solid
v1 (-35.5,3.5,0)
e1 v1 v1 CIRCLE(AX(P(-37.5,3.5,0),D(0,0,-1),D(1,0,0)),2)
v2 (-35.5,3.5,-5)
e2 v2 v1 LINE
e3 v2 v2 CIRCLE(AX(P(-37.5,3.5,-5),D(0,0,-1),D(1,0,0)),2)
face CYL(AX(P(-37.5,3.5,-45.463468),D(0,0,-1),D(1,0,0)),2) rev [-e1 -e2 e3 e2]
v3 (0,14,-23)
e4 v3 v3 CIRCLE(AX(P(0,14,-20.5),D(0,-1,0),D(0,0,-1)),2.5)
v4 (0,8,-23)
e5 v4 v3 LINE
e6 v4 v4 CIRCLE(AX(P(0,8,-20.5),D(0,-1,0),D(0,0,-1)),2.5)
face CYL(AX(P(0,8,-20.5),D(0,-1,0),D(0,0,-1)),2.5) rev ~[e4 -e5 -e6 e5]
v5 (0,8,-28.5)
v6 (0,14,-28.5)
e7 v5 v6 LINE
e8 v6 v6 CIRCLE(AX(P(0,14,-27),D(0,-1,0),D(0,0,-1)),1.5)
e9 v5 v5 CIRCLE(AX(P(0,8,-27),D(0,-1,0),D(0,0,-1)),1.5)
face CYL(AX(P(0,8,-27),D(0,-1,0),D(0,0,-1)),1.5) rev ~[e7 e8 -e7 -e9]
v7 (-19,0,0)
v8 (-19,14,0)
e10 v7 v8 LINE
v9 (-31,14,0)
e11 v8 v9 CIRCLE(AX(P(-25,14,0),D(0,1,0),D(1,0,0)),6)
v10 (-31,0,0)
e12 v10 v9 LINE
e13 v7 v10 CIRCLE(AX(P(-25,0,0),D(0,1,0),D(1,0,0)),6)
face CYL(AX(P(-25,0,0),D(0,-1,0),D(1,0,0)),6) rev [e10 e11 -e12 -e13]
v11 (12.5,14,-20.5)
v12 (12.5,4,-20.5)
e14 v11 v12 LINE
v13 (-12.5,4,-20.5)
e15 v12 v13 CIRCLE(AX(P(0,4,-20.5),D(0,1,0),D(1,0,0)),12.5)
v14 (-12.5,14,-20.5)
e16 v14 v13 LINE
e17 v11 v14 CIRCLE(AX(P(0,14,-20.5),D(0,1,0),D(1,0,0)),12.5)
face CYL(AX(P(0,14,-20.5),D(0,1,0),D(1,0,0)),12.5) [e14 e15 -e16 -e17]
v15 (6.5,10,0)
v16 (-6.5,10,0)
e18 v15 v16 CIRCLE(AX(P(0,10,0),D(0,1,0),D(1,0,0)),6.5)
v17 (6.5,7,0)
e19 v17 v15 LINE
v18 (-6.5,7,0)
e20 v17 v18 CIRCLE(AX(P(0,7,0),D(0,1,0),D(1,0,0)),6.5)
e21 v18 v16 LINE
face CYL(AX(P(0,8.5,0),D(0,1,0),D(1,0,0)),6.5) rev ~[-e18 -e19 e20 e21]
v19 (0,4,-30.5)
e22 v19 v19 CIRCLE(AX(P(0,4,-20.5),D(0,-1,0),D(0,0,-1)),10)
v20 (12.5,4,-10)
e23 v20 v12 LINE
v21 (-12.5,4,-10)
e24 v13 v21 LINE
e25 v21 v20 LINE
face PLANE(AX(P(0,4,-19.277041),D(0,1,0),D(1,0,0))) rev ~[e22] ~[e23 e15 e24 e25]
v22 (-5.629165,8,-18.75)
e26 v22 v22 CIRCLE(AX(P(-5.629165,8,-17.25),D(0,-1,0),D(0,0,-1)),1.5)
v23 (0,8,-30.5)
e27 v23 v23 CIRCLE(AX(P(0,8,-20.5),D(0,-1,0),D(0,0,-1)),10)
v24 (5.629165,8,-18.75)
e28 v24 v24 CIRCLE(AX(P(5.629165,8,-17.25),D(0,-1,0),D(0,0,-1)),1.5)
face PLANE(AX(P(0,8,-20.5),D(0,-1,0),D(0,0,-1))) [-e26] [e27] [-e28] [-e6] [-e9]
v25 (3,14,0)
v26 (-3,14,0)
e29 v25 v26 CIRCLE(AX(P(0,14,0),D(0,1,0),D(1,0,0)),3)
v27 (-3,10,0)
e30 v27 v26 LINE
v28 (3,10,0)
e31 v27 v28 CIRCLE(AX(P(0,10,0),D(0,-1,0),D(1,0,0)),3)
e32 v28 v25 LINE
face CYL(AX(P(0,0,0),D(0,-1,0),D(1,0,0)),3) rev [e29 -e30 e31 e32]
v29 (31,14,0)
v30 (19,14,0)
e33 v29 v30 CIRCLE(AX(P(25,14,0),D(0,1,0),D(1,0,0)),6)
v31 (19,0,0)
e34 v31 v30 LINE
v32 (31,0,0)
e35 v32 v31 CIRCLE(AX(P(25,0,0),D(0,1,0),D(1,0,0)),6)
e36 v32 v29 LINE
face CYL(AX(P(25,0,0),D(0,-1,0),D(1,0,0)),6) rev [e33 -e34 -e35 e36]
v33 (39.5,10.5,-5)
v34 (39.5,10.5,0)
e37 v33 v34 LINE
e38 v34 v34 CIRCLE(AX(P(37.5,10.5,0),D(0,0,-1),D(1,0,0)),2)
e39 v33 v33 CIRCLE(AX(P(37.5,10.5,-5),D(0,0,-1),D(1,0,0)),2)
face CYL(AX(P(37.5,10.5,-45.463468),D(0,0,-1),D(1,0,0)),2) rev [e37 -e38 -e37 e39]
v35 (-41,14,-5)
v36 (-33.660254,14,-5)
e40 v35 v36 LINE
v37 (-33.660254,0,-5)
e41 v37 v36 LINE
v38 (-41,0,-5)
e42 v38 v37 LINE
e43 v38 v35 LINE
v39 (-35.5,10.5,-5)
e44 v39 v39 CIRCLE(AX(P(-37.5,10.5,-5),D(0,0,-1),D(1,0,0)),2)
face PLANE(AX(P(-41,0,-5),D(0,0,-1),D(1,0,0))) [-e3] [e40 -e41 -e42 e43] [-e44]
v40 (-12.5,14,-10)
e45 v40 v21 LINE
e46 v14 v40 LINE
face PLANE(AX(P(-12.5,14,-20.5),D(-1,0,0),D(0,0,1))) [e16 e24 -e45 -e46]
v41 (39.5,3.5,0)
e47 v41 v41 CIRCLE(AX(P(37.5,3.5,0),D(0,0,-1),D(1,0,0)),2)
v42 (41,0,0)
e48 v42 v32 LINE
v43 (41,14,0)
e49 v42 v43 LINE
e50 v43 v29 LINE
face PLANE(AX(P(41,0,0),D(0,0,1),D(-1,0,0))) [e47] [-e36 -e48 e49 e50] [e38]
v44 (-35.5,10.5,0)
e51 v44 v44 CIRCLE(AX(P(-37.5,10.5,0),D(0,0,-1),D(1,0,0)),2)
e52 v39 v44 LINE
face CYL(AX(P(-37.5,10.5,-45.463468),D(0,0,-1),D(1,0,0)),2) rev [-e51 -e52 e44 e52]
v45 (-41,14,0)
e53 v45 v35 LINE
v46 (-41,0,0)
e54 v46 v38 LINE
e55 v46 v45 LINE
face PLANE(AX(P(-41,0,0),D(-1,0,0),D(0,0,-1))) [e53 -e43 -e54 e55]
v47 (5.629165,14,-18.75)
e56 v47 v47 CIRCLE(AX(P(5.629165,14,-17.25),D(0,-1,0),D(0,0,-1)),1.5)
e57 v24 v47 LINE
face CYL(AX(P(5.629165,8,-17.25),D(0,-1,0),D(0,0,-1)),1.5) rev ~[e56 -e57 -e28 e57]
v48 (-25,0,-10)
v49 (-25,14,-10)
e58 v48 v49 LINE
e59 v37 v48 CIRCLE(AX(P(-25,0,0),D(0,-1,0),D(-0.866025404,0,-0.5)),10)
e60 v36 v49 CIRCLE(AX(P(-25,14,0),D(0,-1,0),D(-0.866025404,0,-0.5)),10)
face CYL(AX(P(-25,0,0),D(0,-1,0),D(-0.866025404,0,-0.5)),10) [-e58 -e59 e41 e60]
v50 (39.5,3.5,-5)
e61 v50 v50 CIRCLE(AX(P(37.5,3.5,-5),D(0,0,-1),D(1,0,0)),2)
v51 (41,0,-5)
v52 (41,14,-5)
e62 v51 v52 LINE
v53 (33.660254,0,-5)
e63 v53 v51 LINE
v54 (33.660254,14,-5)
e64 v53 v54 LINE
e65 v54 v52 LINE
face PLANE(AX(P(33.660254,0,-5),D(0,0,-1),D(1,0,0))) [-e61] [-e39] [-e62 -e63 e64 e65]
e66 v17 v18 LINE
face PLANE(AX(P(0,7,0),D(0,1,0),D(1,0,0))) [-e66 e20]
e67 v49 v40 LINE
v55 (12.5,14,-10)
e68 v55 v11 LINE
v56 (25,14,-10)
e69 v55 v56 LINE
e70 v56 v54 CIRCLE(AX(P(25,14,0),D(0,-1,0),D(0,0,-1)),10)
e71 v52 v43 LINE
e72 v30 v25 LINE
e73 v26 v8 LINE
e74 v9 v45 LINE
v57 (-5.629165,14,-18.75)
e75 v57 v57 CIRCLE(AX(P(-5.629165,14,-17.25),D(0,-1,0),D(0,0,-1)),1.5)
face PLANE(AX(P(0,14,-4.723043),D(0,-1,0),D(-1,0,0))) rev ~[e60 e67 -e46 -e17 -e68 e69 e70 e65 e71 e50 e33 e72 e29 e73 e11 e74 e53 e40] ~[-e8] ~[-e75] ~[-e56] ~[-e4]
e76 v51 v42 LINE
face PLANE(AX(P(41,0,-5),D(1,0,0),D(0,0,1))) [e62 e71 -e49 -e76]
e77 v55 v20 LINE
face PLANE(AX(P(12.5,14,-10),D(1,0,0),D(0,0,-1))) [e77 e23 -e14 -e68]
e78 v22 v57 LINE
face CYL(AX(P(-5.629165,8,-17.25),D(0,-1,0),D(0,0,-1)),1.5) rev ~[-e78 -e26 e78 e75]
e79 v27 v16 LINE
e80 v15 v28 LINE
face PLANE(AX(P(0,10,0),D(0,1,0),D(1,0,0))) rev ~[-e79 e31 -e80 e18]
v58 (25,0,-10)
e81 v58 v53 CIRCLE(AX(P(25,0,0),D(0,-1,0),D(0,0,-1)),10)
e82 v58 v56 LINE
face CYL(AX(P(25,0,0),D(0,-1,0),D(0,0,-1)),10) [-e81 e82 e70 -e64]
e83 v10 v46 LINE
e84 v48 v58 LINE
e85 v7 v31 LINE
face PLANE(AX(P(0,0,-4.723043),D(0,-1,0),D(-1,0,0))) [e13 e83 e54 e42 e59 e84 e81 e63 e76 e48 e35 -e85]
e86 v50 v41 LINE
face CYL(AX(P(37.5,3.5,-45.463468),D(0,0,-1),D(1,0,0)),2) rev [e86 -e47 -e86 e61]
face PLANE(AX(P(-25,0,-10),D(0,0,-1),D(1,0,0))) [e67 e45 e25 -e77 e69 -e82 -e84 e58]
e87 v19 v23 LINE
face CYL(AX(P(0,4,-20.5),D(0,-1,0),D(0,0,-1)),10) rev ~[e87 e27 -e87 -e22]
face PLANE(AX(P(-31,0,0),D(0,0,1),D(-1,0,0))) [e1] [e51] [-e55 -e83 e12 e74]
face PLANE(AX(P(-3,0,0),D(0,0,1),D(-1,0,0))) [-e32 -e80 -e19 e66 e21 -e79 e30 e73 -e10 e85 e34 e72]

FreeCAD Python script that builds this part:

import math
import FreeCAD as App
import Part
import Sketcher

V = App.Vector

doc = App.newDocument("Part")
body = doc.addObject("PartDesign::Body", "Body")

# Sketch on XZ plane
sketch1 = doc.addObject("Sketcher::SketchObject", "Sketch")
body.addObject(sketch1)
sketch1.AttachmentSupport = (doc.XZ_Plane, [""])
sketch1.MapMode = "FlatFace"
sketch1.addGeometry(Part.LineSegment(V(-19, 0, 0), V(-3, 0, 0)), False)
sketch1.addGeometry(Part.ArcOfCircle(Part.Circle(V(0, 0, 0), V(0, 0, 1), 3), math.radians(180), math.radians(360)), False)
sketch1.addGeometry(Part.LineSegment(V(3, 0, 0), V(19, 0, 0)), False)
sketch1.addGeometry(Part.ArcOfCircle(Part.Circle(V(25, 0, 0), V(0, 0, 1), 6), math.radians(180), math.radians(360)), False)
sketch1.addGeometry(Part.LineSegment(V(31, 0, 0), V(41, 0, 0)), False)
sketch1.addGeometry(Part.LineSegment(V(41, 0, 0), V(41, -5, 0)), False)
sketch1.addGeometry(Part.LineSegment(V(41, -5, 0), V(33.660254, -5, 0)), False)
sketch1.addGeometry(Part.ArcOfCircle(Part.Circle(V(25, 0, 0), V(0, 0, 1), 10), math.radians(-90), math.radians(-30)), False)
sketch1.addGeometry(Part.LineSegment(V(25, -10, 0), V(-25, -10, 0)), False)
sketch1.addGeometry(Part.ArcOfCircle(Part.Circle(V(-25, 0, 0), V(0, 0, 1), 10), math.radians(-150), math.radians(-90)), False)
sketch1.addGeometry(Part.LineSegment(V(-33.660254, -5, 0), V(-41, -5, 0)), False)
sketch1.addGeometry(Part.LineSegment(V(-41, -5, 0), V(-41, 0, 0)), False)
sketch1.addGeometry(Part.LineSegment(V(-41, 0, 0), V(-31, 0, 0)), False)
sketch1.addGeometry(Part.ArcOfCircle(Part.Circle(V(-25, 0, 0), V(0, 0, 1), 6), math.radians(180), math.radians(360)), False)
sketch1.addConstraint(Sketcher.Constraint("Coincident", 0, 2, 1, 1))
sketch1.addConstraint(Sketcher.Constraint("Coincident", 1, 2, 2, 1))
sketch1.addConstraint(Sketcher.Constraint("Coincident", 2, 2, 3, 1))
sketch1.addConstraint(Sketcher.Constraint("Coincident", 3, 2, 4, 1))
sketch1.addConstraint(Sketcher.Constraint("Coincident", 4, 2, 5, 1))
sketch1.addConstraint(Sketcher.Constraint("Coincident", 5, 2, 6, 1))
sketch1.addConstraint(Sketcher.Constraint("Coincident", 6, 2, 7, 2))
sketch1.addConstraint(Sketcher.Constraint("Tangent", 7, 1, 8, 1))
sketch1.addConstraint(Sketcher.Constraint("Tangent", 8, 2, 9, 2))
sketch1.addConstraint(Sketcher.Constraint("Coincident", 9, 1, 10, 1))
sketch1.addConstraint(Sketcher.Constraint("Coincident", 10, 2, 11, 1))
sketch1.addConstraint(Sketcher.Constraint("Coincident", 11, 2, 12, 1))
sketch1.addConstraint(Sketcher.Constraint("Coincident", 12, 2, 13, 1))
sketch1.addConstraint(Sketcher.Constraint("Coincident", 13, 2, 0, 1))
sketch1.addConstraint(Sketcher.Constraint("Horizontal", 0))
sketch1.addConstraint(Sketcher.Constraint("Horizontal", 2))
sketch1.addConstraint(Sketcher.Constraint("Horizontal", 4))
sketch1.addConstraint(Sketcher.Constraint("Vertical", 5))
sketch1.addConstraint(Sketcher.Constraint("Horizontal", 6))
sketch1.addConstraint(Sketcher.Constraint("Horizontal", 8))
sketch1.addConstraint(Sketcher.Constraint("Horizontal", 10))
sketch1.addConstraint(Sketcher.Constraint("Vertical", 11))
sketch1.addConstraint(Sketcher.Constraint("Horizontal", 12))
sketch1.addConstraint(Sketcher.Constraint("Coincident", 1, 3, -1, 1))
sketch1.addConstraint(Sketcher.Constraint("Coincident", 7, 3, 3, 3))
sketch1.addConstraint(Sketcher.Constraint("Coincident", 13, 3, 9, 3))
sketch1.addConstraint(Sketcher.Constraint("Equal", 7, 9))
sketch1.addConstraint(Sketcher.Constraint("Equal", 3, 13))
sketch1.addConstraint(Sketcher.Constraint("Symmetric", 3, 3, 9, 3, -1, 1))
sketch1.addConstraint(Sketcher.Constraint("Symmetric", 4, 2, 11, 2, -1, 1))
sketch1.addConstraint(Sketcher.Constraint("PointOnObject", 0, 2, -1))
sketch1.addConstraint(Sketcher.Constraint("PointOnObject", 1, 2, -1))
sketch1.addConstraint(Sketcher.Constraint("PointOnObject", 3, 2, -1))
sketch1.addConstraint(Sketcher.Constraint("Horizontal", 6, 2, 9, 1))
sketch1.addConstraint(Sketcher.Constraint("Radius", 1, 3.0))
sketch1.addConstraint(Sketcher.Constraint("Radius", 3, 6.0))
sketch1.addConstraint(Sketcher.Constraint("Radius", 7, 10.0))
sketch1.addConstraint(Sketcher.Constraint("DistanceX", 0, 1, 0, 2, 16.0))
sketch1.addConstraint(Sketcher.Constraint("DistanceX", 4, 1, 4, 2, 10.0))
sketch1.addConstraint(Sketcher.Constraint("DistanceY", 5, 2, 5, 1, 5.0))
pad1 = doc.addObject("PartDesign::Pad", "Pad")
body.addObject(pad1)
pad1.Profile = sketch1
pad1.Length = 14
pad1.Reversed = True

# Sketch on XY plane
sketch2 = doc.addObject("Sketcher::SketchObject", "Sketch001")
body.addObject(sketch2)
sketch2.AttachmentSupport = (doc.XY_Plane, [""])
sketch2.MapMode = "FlatFace"
sketch2.addGeometry(Part.Circle(V(-37.5, 10.5, 0), V(0, 0, 1), 2), False)
sketch2.addGeometry(Part.Circle(V(-37.5, 3.5, 0), V(0, 0, 1), 2), False)
sketch2.addGeometry(Part.Circle(V(37.5, 10.5, 0), V(0, 0, 1), 2), False)
sketch2.addGeometry(Part.Circle(V(37.5, 3.5, 0), V(0, 0, 1), 2), False)
sketch2.addConstraint(Sketcher.Constraint("Equal", 0, 1))
sketch2.addConstraint(Sketcher.Constraint("Equal", 1, 2))
sketch2.addConstraint(Sketcher.Constraint("Equal", 2, 3))
sketch2.addConstraint(Sketcher.Constraint("Symmetric", 0, 3, 2, 3, -2))
sketch2.addConstraint(Sketcher.Constraint("Symmetric", 1, 3, 3, 3, -2))
sketch2.addConstraint(Sketcher.Constraint("Vertical", 0, 3, 1, 3))
sketch2.addConstraint(Sketcher.Constraint("Diameter", 0, 4.0))
sketch2.addConstraint(Sketcher.Constraint("DistanceY", 1, 3, 0, 3, 7.0))
sketch2.addConstraint(Sketcher.Constraint("DistanceX", 0, 3, 2, 3, 75.0))
sketch2.addConstraint(Sketcher.Constraint("DistanceY", -1, 1, 0, 3, 10.5))
pocket1 = doc.addObject("PartDesign::Pocket", "Pocket")
body.addObject(pocket1)
pocket1.Profile = sketch2
pocket1.Type = "ThroughAll"
pocket1.Midplane = True

# Sketch on XZ plane
sketch3 = doc.addObject("Sketcher::SketchObject", "Sketch002")
body.addObject(sketch3)
sketch3.AttachmentSupport = (doc.XZ_Plane, [""])
sketch3.MapMode = "FlatFace"
sketch3.addGeometry(Part.LineSegment(V(-4.683316, 0, 0), V(-4.683316, -4.044371, 0)), False)
sketch3.addGeometry(Part.LineSegment(V(-4.683316, -4.044371, 0), V(4.6254, -4.044371, 0)), False)
sketch3.addGeometry(Part.LineSegment(V(4.6254, -4.044371, 0), V(4.6254, 0, 0)), False)
sketch3.addGeometry(Part.LineSegment(V(4.6254, 0, 0), V(-4.683316, 0, 0)), False)
sketch3.addConstraint(Sketcher.Constraint("Coincident", 0, 2, 1, 1))
sketch3.addConstraint(Sketcher.Constraint("Coincident", 1, 2, 2, 1))
sketch3.addConstraint(Sketcher.Constraint("Coincident", 2, 2, 3, 1))
sketch3.addConstraint(Sketcher.Constraint("Coincident", 3, 2, 0, 1))
sketch3.addConstraint(Sketcher.Constraint("Vertical", 0))
sketch3.addConstraint(Sketcher.Constraint("Horizontal", 1))
sketch3.addConstraint(Sketcher.Constraint("Vertical", 2))
sketch3.addConstraint(Sketcher.Constraint("Horizontal", 3))
sketch3.addConstraint(Sketcher.Constraint("PointOnObject", 2, 2, -1))
sketch3.addConstraint(Sketcher.Constraint("DistanceY", 0, 2, 0, 1, 4.044371))
sketch3.addConstraint(Sketcher.Constraint("DistanceX", -1, 1, 1, 2, 4.6254))
sketch3.addConstraint(Sketcher.Constraint("DistanceX", 1, 1, 1, 2, 9.308716))
pad2 = doc.addObject("PartDesign::Pad", "Pad001")
body.addObject(pad2)
pad2.Profile = sketch3
pad2.Length = 7
pad2.Reversed = True

# Sketch on XZ plane
sketch4 = doc.addObject("Sketcher::SketchObject", "Sketch003")
body.addObject(sketch4)
sketch4.AttachmentSupport = (doc.XZ_Plane, [""])
sketch4.MapMode = "FlatFace"
sketch4.AttachmentOffset = App.Placement(V(0, 0, -8.5), App.Rotation())
sketch4.addGeometry(Part.Circle(V(0, 0, 0), V(0, 0, 1), 6.5), False)
sketch4.addConstraint(Sketcher.Constraint("Coincident", 0, 3, -1, 1))
sketch4.addConstraint(Sketcher.Constraint("Diameter", 0, 13.0))
pocket2 = doc.addObject("PartDesign::Pocket", "Pocket001")
body.addObject(pocket2)
pocket2.Profile = sketch4
pocket2.Length = 3
pocket2.Midplane = True

# Sketch on XZ plane
sketch5 = doc.addObject("Sketcher::SketchObject", "Sketch004")
body.addObject(sketch5)
sketch5.AttachmentSupport = (doc.XZ_Plane, [""])
sketch5.MapMode = "FlatFace"
sketch5.AttachmentOffset = App.Placement(V(0, 0, -14), App.Rotation())
sketch5.addGeometry(Part.LineSegment(V(-12.5, -20.5, 0), V(-12.5, -10, 0)), False)
sketch5.addGeometry(Part.LineSegment(V(-12.5, -10, 0), V(12.5, -10, 0)), False)
sketch5.addGeometry(Part.LineSegment(V(12.5, -10, 0), V(12.5, -20.5, 0)), False)
sketch5.addGeometry(Part.ArcOfCircle(Part.Circle(V(0, -20.5, 0), V(0, 0, 1), 12.5), math.radians(180), math.radians(360)), False)
sketch5.addConstraint(Sketcher.Constraint("Coincident", 0, 2, 1, 1))
sketch5.addConstraint(Sketcher.Constraint("Coincident", 1, 2, 2, 1))
sketch5.addConstraint(Sketcher.Constraint("Tangent", 2, 2, 3, 2))
sketch5.addConstraint(Sketcher.Constraint("Tangent", 3, 1, 0, 1))
sketch5.addConstraint(Sketcher.Constraint("Vertical", 0))
sketch5.addConstraint(Sketcher.Constraint("Horizontal", 1))
sketch5.addConstraint(Sketcher.Constraint("Vertical", 2))
sketch5.addConstraint(Sketcher.Constraint("PointOnObject", 3, 3, -2))
sketch5.addConstraint(Sketcher.Constraint("Radius", 3, 12.5))
sketch5.addConstraint(Sketcher.Constraint("DistanceY", 0, 1, 0, 2, 10.5))
sketch5.addConstraint(Sketcher.Constraint("DistanceY", 0, 2, -1, 1, 10.0))
pad3 = doc.addObject("PartDesign::Pad", "Pad002")
body.addObject(pad3)
pad3.Profile = sketch5
pad3.Length = 10

# Sketch on XZ plane
sketch6 = doc.addObject("Sketcher::SketchObject", "Sketch005")
body.addObject(sketch6)
sketch6.AttachmentSupport = (doc.XZ_Plane, [""])
sketch6.MapMode = "FlatFace"
sketch6.AttachmentOffset = App.Placement(V(0, 0, -4), App.Rotation())
sketch6.addGeometry(Part.Circle(V(0, -20.5, 0), V(0, 0, 1), 10), False)
sketch6.addConstraint(Sketcher.Constraint("PointOnObject", 0, 3, -2))
sketch6.addConstraint(Sketcher.Constraint("Diameter", 0, 20.0))
sketch6.addConstraint(Sketcher.Constraint("DistanceY", 0, 3, -1, 1, 20.5))
pocket3 = doc.addObject("PartDesign::Pocket", "Pocket002")
body.addObject(pocket3)
pocket3.Profile = sketch6
pocket3.Length = 4

# Sketch on XZ plane
sketch7 = doc.addObject("Sketcher::SketchObject", "Sketch006")
body.addObject(sketch7)
sketch7.AttachmentSupport = (doc.XZ_Plane, [""])
sketch7.MapMode = "FlatFace"
sketch7.AttachmentOffset = App.Placement(V(0, 0, -8), App.Rotation())
sketch7.addGeometry(Part.Circle(V(0, -20.5, 0), V(0, 0, 1), 2.5), False)
sketch7.addConstraint(Sketcher.Constraint("PointOnObject", 0, 3, -2))
sketch7.addConstraint(Sketcher.Constraint("Diameter", 0, 5.0))
sketch7.addConstraint(Sketcher.Constraint("DistanceY", 0, 3, -1, 1, 20.5))
pocket4 = doc.addObject("PartDesign::Pocket", "Pocket003")
body.addObject(pocket4)
pocket4.Profile = sketch7
pocket4.Type = "ThroughAll"

# Sketch on XZ plane
sketch8 = doc.addObject("Sketcher::SketchObject", "Sketch007")
body.addObject(sketch8)
sketch8.AttachmentSupport = (doc.XZ_Plane, [""])
sketch8.MapMode = "FlatFace"
sketch8.AttachmentOffset = App.Placement(V(0, 0, -8), App.Rotation())
sketch8.addGeometry(Part.Circle(V(0, -27, 0), V(0, 0, 1), 1.5), False)
sketch8.addGeometry(Part.Circle(V(-5.629165, -17.25, 0), V(0, 0, 1), 1.5), False)
sketch8.addGeometry(Part.Circle(V(5.629165, -17.25, 0), V(0, 0, 1), 1.5), False)
sketch8.addConstraint(Sketcher.Constraint("Equal", 0, 1))
sketch8.addConstraint(Sketcher.Constraint("Equal", 1, 2))
sketch8.addConstraint(Sketcher.Constraint("Symmetric", 1, 3, 2, 3, -2))
sketch8.addConstraint(Sketcher.Constraint("PointOnObject", 0, 3, -2))
sketch8.addConstraint(Sketcher.Constraint("Diameter", 0, 3.0))
sketch8.addConstraint(Sketcher.Constraint("DistanceY", 0, 3, -1, 1, 27.0))
sketch8.addConstraint(Sketcher.Constraint("DistanceY", 1, 3, -1, 1, 17.25))
sketch8.addConstraint(Sketcher.Constraint("DistanceX", 1, 3, 2, 3, 11.25833))
pocket5 = doc.addObject("PartDesign::Pocket", "Pocket004")
body.addObject(pocket5)
pocket5.Profile = sketch8
pocket5.Type = "ThroughAll"

doc.recompute()
